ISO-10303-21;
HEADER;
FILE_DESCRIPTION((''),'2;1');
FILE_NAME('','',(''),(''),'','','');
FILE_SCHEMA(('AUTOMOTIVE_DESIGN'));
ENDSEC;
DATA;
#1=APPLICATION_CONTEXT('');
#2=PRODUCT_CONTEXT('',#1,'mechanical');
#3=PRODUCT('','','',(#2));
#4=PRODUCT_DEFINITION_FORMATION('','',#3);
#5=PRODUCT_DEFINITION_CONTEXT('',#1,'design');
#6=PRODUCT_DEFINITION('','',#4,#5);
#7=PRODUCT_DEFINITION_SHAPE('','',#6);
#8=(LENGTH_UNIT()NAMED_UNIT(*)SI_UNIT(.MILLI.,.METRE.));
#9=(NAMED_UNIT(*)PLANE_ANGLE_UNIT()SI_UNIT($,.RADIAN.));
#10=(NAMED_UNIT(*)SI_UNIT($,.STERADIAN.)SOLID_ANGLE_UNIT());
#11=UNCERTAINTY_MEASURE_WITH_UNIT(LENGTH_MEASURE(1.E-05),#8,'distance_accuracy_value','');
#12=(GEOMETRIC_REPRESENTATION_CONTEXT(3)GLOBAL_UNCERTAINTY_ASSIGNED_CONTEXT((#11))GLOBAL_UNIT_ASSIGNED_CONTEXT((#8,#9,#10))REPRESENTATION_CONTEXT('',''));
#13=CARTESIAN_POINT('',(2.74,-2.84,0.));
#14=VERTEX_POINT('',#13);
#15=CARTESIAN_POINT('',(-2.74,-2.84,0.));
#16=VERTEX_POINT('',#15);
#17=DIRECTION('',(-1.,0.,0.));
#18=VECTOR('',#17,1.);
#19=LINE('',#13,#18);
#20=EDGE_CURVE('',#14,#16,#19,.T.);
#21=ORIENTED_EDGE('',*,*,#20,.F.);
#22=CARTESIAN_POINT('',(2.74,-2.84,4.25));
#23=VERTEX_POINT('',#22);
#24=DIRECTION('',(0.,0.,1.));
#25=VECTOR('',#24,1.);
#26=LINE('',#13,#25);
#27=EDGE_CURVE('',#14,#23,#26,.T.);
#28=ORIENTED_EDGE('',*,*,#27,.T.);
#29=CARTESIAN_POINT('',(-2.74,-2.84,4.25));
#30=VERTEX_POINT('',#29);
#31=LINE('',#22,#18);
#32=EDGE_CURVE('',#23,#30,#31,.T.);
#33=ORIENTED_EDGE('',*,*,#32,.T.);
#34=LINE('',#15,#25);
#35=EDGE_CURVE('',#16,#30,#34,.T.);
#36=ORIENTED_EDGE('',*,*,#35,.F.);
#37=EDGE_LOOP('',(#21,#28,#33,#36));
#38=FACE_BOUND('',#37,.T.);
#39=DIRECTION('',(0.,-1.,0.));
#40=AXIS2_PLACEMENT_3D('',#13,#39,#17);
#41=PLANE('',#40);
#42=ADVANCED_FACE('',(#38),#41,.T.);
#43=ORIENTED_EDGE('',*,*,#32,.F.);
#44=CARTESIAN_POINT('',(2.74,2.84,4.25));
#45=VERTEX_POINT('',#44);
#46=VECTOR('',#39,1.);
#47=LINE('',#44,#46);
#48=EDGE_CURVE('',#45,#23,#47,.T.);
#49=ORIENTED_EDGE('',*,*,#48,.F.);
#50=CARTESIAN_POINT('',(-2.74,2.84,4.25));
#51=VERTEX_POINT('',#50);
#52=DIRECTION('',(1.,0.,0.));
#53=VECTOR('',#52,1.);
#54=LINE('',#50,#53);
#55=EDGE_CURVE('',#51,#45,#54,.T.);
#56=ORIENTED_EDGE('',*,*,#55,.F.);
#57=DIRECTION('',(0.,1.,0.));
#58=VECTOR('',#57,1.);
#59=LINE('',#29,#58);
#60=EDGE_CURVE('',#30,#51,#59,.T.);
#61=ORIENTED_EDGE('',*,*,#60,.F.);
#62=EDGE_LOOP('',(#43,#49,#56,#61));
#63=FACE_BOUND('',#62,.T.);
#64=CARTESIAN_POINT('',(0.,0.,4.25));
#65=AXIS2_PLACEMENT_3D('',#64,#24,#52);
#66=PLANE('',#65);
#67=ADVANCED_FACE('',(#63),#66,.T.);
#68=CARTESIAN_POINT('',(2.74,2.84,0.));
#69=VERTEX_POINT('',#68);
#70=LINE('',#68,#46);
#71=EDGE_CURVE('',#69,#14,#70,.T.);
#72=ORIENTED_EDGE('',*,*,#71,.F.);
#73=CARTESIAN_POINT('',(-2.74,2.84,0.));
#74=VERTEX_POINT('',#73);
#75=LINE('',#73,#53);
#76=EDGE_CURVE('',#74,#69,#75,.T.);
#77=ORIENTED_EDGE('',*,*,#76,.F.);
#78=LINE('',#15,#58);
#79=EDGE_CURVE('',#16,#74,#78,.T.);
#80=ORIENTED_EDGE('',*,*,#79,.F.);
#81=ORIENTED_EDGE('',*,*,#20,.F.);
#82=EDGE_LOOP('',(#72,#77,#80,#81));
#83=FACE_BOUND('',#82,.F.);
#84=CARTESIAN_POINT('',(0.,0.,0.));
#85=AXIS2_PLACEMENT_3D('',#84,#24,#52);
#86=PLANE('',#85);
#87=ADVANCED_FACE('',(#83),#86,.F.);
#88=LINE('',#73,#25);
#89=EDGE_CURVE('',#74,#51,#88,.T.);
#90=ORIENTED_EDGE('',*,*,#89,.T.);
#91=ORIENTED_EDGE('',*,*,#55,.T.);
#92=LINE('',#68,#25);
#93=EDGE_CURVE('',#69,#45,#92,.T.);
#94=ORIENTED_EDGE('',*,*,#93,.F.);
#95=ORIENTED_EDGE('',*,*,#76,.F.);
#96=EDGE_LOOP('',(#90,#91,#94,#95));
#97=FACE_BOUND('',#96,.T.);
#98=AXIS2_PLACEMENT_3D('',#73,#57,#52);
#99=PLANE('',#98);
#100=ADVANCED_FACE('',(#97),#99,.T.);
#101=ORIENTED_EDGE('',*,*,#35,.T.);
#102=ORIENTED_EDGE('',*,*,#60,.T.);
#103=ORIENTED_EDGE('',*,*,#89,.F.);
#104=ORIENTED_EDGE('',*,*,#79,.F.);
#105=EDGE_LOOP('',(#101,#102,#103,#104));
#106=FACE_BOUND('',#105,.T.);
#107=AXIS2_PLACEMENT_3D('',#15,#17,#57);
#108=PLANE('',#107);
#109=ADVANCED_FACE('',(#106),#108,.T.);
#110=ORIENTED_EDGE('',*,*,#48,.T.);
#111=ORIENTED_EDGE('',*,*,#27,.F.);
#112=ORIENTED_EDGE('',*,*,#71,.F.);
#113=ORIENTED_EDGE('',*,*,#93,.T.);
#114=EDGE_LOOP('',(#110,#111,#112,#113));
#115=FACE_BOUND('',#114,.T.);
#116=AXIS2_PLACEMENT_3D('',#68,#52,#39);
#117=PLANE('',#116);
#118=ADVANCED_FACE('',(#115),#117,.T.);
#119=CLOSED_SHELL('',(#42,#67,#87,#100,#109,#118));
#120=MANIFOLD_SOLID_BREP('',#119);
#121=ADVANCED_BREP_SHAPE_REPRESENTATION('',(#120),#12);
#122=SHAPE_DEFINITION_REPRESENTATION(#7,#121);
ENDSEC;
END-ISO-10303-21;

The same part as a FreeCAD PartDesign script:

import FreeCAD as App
import Part
import Sketcher

V = App.Vector


def add_polygon(sketch, points):
    """Adds a closed chain of lines whose ends are joined by coincident constraints."""
    first, n = sketch.GeometryCount, len(points)
    for a, b in zip(points, points[1:] + points[:1]):
        sketch.addGeometry(Part.LineSegment(App.Vector(*a, 0), App.Vector(*b, 0)), False)
    for i in range(n):
        sketch.addConstraint(Sketcher.Constraint("Coincident", first + i, 2, first + (i + 1) % n, 1))

doc = App.newDocument("Part")
body = doc.addObject("PartDesign::Body", "Body")

# Sketch on XY plane
sketch1 = body.newObject("Sketcher::SketchObject", "Sketch")
sketch1.AttachmentSupport = (doc.getObject("XY_Plane"), [""])
sketch1.MapMode = "FlatFace"
add_polygon(sketch1, [(3, -3), (3, 3), (-3, 3), (-3, -3)])  # lines 0-3
sketch1.addConstraint([
    Sketcher.Constraint("Vertical", 0),
    Sketcher.Constraint("Horizontal", 1),
    Sketcher.Constraint("Vertical", 2),
    Sketcher.Constraint("Horizontal", 3),
    Sketcher.Constraint("Symmetric", 0, 2, 2, 2, -1, 1),
    Sketcher.Constraint("DistanceX", 1, 2, 1, 1, 5.48),
    Sketcher.Constraint("DistanceY", 0, 1, 0, 2, 5.68),
])
pad1 = body.newObject("PartDesign::Pad", "Pad")
pad1.Profile = sketch1
pad1.Length = 4.25

doc.recompute()
